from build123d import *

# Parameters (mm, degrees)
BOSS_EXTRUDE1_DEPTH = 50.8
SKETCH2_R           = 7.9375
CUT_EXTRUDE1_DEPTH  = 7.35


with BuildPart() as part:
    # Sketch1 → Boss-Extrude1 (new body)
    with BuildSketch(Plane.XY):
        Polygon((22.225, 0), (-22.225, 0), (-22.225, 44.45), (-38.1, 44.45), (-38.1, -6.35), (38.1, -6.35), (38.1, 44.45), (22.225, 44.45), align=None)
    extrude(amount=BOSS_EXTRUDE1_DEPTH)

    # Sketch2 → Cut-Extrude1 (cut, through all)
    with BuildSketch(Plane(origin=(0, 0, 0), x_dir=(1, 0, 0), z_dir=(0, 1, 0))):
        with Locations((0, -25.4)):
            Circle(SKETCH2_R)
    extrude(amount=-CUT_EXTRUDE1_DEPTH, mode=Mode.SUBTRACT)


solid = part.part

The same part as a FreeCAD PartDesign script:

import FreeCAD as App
import Part
import Sketcher

V = App.Vector
Q = App.Units.Quantity

doc = App.newDocument("Part")
body = doc.addObject("PartDesign::Body", "Body")

sketch1 = doc.addObject("Sketcher::SketchObject", "Sketch")
body.addObject(sketch1)
sketch1.AttachmentSupport = (doc.XY_Plane, [""])
sketch1.MapMode = "FlatFace"
sketch1.addGeometry([
    Part.LineSegment(V(22.225, 0, 0), V(-22.225, 0, 0)),
    Part.LineSegment(V(-22.225, 0, 0), V(-22.225, 44.45, 0)),
    Part.LineSegment(V(-22.225, 44.45, 0), V(-38.1, 44.45, 0)),
    Part.LineSegment(V(-38.1, 44.45, 0), V(-38.1, -6.35, 0)),
    Part.LineSegment(V(-38.1, -6.35, 0), V(38.1, -6.35, 0)),
    Part.LineSegment(V(38.1, -6.35, 0), V(38.1, 44.45, 0)),
    Part.LineSegment(V(38.1, 44.45, 0), V(22.225, 44.45, 0)),
    Part.LineSegment(V(22.225, 44.45, 0), V(22.225, 0, 0)),
], False)
sketch1.addConstraint([
    Sketcher.Constraint("Coincident", 0, 2, 1, 1),
    Sketcher.Constraint("Coincident", 1, 2, 2, 1),
    Sketcher.Constraint("Coincident", 2, 2, 3, 1),
    Sketcher.Constraint("Coincident", 3, 2, 4, 1),
    Sketcher.Constraint("Coincident", 4, 2, 5, 1),
    Sketcher.Constraint("Coincident", 5, 2, 6, 1),
    Sketcher.Constraint("Coincident", 6, 2, 7, 1),
    Sketcher.Constraint("Coincident", 7, 2, 0, 1),
    Sketcher.Constraint("Horizontal", 0),
    Sketcher.Constraint("Vertical", 1),
    Sketcher.Constraint("Horizontal", 2),
    Sketcher.Constraint("Vertical", 3),
    Sketcher.Constraint("Horizontal", 4),
    Sketcher.Constraint("Vertical", 5),
    Sketcher.Constraint("Horizontal", 6),
    Sketcher.Constraint("Vertical", 7),
    Sketcher.Constraint("Symmetric", 0, 2, 7, 2, -1, 1),
    Sketcher.Constraint("Symmetric", 2, 2, 5, 2, -2),
    Sketcher.Constraint("Equal", 0, 1),
    Sketcher.Constraint("DistanceX", 4, 1, 4, 2, Q("3 in")),
    Sketcher.Constraint("DistanceY", 3, 2, 3, 1, Q("2 in")),
    Sketcher.Constraint("DistanceX", 0, 2, 0, 1, Q("1.75 in")),
])
pad1 = doc.addObject("PartDesign::Pad", "Pad")
body.addObject(pad1)
pad1.Profile = sketch1
pad1.Length = Q("2 in")

sketch2 = doc.addObject("Sketcher::SketchObject", "Sketch001")
body.addObject(sketch2)
sketch2.AttachmentSupport = (doc.XZ_Plane, [""])
sketch2.MapMode = "FlatFace"
sketch2.addGeometry(Part.Circle(V(0, 25.4, 0), V(0, 0, 1), 7.9375), False)
sketch2.addConstraint([
    Sketcher.Constraint("PointOnObject", 0, 3, -2),
    Sketcher.Constraint("Diameter", 0, Q("0.625 in")),
    Sketcher.Constraint("DistanceY", -1, 1, 0, 3, Q("1 in")),
])
pocket1 = doc.addObject("PartDesign::Pocket", "Pocket")
body.addObject(pocket1)
pocket1.Profile = sketch2
pocket1.Type = "ThroughAll"
pocket1.Reversed = True

doc.recompute()
